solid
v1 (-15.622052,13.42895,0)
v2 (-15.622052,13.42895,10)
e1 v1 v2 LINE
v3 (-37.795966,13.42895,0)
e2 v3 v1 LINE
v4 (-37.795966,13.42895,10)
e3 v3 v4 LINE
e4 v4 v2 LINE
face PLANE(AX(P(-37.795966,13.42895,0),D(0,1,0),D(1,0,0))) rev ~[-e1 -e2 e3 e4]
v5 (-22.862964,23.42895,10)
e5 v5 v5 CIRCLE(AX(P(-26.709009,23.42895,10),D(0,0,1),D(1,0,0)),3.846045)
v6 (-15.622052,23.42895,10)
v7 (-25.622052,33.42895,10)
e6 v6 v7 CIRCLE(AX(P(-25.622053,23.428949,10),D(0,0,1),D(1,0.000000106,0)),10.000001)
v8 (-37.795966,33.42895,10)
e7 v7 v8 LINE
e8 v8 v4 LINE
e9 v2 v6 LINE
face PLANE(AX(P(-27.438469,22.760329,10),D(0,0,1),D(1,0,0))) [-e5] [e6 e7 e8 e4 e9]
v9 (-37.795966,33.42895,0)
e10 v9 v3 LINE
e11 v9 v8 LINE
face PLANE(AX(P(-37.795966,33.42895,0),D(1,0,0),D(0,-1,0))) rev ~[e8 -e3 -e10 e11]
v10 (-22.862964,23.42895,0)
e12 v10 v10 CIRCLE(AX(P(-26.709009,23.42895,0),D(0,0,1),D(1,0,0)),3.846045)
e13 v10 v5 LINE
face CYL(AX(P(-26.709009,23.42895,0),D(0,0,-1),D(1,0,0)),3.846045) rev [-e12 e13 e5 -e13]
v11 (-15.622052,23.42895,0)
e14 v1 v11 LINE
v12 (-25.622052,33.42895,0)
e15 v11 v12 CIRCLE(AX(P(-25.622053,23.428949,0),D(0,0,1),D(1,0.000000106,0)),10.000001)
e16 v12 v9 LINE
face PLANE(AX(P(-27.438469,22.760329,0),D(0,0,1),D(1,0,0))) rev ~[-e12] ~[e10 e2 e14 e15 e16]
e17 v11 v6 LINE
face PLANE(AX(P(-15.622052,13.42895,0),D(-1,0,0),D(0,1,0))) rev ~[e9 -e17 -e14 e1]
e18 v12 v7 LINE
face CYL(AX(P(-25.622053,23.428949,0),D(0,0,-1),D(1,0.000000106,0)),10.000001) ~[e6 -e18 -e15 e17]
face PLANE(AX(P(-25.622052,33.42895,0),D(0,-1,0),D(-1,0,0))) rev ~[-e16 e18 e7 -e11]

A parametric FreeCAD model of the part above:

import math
import FreeCAD as App
import Part
import Sketcher

doc = App.newDocument("Part")
body = doc.addObject("PartDesign::Body", "Body")

# Sketch on XY plane
sketch1 = body.newObject("Sketcher::SketchObject", "Sketch")
sketch1.AttachmentSupport = (doc.getObject("XY_Plane"), [""])
sketch1.MapMode = "FlatFace"
sketch1.addGeometry([
    Part.LineSegment(App.Vector(-37.8, 13.4, 0), App.Vector(-15.6, 13.4, 0)),  # 0
    Part.LineSegment(App.Vector(-15.6, 13.4, 0), App.Vector(-15.6, 23.4, 0)),  # 1
    Part.ArcOfCircle(Part.Circle(App.Vector(-25.6, 23.4, 0), App.Vector(0, 0, 1), 10), math.radians(0), math.radians(90)),  # 2
    Part.LineSegment(App.Vector(-25.6, 33.4, 0), App.Vector(-37.8, 33.4, 0)),  # 3
    Part.LineSegment(App.Vector(-37.8, 33.4, 0), App.Vector(-37.8, 13.4, 0)),  # 4
    Part.Circle(App.Vector(-26.7, 23.4, 0), App.Vector(0, 0, 1), 3.8),  # 5
], False)
sketch1.addConstraint([
    Sketcher.Constraint("Coincident", 0, 2, 1, 1),
    Sketcher.Constraint("Tangent", 1, 2, 2, 1),
    Sketcher.Constraint("Tangent", 2, 2, 3, 1),
    Sketcher.Constraint("Coincident", 3, 2, 4, 1),
    Sketcher.Constraint("Coincident", 4, 2, 0, 1),
    Sketcher.Constraint("Horizontal", 0),
    Sketcher.Constraint("Vertical", 1),
    Sketcher.Constraint("Horizontal", 3),
    Sketcher.Constraint("Vertical", 4),
    Sketcher.Constraint("Horizontal", 2, 3, 5, 3),
    Sketcher.Constraint("Radius", 2, 10.000001),
    Sketcher.Constraint("DistanceY", 1, 1, 1, 2, 10.0),
    Sketcher.Constraint("Diameter", 5, 7.69209),
    Sketcher.Constraint("DistanceX", 0, 1, 0, 2, 22.173914),
    Sketcher.Constraint("DistanceY", -1, 1, 2, 3, 23.428949),
    Sketcher.Constraint("DistanceX", 5, 3, -1, 1, 26.709009),
    Sketcher.Constraint("DistanceX", 2, 2, -1, 1, 25.622052),
])
pad1 = body.newObject("PartDesign::Pad", "Pad")
pad1.Profile = sketch1
pad1.Length = 10

doc.recompute()
